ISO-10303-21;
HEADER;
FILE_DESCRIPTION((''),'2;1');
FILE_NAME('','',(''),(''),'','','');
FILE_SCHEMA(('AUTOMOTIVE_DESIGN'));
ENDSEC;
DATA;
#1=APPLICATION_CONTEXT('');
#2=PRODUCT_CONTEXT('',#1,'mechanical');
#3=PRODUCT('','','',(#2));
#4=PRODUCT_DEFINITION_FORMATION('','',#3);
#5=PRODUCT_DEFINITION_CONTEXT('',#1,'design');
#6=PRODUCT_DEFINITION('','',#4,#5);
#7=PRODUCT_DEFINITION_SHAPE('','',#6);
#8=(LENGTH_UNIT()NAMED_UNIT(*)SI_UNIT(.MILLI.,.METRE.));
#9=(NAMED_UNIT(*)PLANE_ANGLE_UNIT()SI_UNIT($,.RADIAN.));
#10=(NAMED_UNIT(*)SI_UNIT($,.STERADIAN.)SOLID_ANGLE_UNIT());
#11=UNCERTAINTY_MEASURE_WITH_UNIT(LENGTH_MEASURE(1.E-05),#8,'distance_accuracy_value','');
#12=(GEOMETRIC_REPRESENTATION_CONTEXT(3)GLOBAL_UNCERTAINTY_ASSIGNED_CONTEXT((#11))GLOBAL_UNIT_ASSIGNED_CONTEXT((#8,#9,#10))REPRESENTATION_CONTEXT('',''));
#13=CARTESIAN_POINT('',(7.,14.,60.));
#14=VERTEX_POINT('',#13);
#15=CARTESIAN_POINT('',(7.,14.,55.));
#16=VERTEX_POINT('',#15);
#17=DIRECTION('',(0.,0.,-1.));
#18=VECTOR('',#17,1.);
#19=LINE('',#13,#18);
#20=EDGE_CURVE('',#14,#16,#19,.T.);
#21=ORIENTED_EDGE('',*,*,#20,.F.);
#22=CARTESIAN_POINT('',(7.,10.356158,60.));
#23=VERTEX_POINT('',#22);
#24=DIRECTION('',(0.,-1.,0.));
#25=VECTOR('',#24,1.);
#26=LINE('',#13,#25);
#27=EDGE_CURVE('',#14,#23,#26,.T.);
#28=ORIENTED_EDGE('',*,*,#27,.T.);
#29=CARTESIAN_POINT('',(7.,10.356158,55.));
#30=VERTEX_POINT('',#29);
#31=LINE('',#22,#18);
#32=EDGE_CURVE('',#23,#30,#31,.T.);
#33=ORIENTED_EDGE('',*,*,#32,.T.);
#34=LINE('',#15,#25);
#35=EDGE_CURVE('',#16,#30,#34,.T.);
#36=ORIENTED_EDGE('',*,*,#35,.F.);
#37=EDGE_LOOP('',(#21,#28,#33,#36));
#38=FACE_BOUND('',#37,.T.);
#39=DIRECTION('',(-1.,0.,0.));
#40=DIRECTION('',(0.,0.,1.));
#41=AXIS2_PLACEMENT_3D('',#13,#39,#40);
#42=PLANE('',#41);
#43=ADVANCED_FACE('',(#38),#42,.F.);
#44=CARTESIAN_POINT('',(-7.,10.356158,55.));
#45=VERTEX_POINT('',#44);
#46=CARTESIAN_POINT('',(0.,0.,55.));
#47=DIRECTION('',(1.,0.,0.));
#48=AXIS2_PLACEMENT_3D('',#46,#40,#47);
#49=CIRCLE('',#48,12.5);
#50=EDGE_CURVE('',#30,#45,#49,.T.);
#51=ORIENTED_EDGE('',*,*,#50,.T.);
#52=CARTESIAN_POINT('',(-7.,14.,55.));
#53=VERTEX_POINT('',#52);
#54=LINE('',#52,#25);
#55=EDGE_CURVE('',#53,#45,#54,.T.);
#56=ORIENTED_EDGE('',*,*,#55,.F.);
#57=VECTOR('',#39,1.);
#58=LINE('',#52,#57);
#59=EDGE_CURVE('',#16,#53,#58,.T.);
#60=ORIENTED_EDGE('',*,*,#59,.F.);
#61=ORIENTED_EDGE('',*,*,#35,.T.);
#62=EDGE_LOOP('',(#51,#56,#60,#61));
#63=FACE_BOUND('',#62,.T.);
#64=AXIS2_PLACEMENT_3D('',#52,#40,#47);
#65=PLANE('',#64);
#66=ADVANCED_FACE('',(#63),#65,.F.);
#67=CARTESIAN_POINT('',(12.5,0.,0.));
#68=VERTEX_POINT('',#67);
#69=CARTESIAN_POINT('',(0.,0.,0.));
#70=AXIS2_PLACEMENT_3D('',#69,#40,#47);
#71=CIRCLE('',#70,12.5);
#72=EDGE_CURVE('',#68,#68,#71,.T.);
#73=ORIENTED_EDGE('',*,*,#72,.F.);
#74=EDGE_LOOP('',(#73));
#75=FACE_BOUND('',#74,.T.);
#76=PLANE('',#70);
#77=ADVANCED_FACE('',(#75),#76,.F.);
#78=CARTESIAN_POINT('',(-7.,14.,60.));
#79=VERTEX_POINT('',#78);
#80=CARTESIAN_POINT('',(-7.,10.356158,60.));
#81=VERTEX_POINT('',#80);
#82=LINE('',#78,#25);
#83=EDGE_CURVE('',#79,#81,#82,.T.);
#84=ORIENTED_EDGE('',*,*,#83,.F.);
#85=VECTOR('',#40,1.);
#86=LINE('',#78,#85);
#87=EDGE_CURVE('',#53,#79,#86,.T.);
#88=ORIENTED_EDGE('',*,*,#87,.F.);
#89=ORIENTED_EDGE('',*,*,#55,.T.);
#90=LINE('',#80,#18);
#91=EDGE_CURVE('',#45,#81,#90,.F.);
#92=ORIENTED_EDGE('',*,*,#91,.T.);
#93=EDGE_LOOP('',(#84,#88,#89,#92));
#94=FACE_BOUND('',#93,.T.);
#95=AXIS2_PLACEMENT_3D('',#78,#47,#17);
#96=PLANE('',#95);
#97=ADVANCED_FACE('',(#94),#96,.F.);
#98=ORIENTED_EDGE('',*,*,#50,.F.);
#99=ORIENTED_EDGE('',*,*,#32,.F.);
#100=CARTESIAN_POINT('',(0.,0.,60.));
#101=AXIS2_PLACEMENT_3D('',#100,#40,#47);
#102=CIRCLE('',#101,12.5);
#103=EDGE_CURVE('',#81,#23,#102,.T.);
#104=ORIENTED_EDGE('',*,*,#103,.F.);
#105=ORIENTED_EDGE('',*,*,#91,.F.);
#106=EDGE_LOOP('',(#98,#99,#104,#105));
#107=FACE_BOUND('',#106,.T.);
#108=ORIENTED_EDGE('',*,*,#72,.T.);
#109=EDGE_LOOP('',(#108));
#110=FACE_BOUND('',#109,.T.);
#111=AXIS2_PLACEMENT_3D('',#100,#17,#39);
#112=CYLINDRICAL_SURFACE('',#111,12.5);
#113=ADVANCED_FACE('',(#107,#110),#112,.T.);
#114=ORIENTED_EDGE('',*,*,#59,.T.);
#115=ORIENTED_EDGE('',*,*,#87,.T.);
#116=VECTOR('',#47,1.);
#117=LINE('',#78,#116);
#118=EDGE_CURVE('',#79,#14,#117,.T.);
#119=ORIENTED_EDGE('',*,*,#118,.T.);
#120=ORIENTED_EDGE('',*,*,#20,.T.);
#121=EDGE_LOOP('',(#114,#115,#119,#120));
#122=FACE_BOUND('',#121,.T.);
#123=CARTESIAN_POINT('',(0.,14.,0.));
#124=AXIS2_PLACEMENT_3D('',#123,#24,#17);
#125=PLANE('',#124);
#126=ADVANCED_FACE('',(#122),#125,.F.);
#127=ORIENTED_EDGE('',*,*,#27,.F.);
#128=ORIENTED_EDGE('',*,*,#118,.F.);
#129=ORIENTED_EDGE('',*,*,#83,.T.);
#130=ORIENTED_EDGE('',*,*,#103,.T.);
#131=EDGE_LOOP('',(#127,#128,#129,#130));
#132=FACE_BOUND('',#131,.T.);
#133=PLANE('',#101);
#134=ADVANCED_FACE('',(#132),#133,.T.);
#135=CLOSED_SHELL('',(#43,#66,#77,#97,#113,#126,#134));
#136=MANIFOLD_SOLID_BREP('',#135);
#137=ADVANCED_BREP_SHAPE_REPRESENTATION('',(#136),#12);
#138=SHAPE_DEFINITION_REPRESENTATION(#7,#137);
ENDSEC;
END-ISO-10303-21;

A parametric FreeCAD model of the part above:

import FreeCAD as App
import Part
import Sketcher

V = App.Vector
Q = App.Units.Quantity

doc = App.newDocument("Part")
body = doc.addObject("PartDesign::Body", "Body")

# Sketch on XY plane
sketch1 = body.newObject("Sketcher::SketchObject", "Sketch")
sketch1.AttachmentSupport = (doc.getObject("XY_Plane"), [""])
sketch1.MapMode = "FlatFace"
sketch1.addGeometry(Part.Circle(V(0, 0, 0), V(0, 0, 1), 12), False)
sketch1.addConstraint(Sketcher.Constraint("Coincident", 0, 3, -1, 1))
sketch1.addConstraint(Sketcher.Constraint("Diameter", 0, Q("25 mm")))
pad1 = body.newObject("PartDesign::Pad", "Pad")
pad1.Profile = sketch1
pad1.Length = 60

# Sketch on XZ plane
sketch2 = body.newObject("Sketcher::SketchObject", "Sketch001")
sketch2.AttachmentSupport = (doc.getObject("XZ_Plane"), [""])
sketch2.MapMode = "FlatFace"
sketch2.addGeometry(Part.LineSegment(V(-7, 55, 0), V(-7, 60, 0)), False)
sketch2.addGeometry(Part.LineSegment(V(-7, 60, 0), V(7, 60, 0)), False)
sketch2.addGeometry(Part.LineSegment(V(7, 60, 0), V(7, 55, 0)), False)
sketch2.addGeometry(Part.LineSegment(V(7, 55, 0), V(-7, 55, 0)), False)
sketch2.addConstraint(Sketcher.Constraint("Coincident", 0, 2, 1, 1))
sketch2.addConstraint(Sketcher.Constraint("Coincident", 1, 2, 2, 1))
sketch2.addConstraint(Sketcher.Constraint("Coincident", 2, 2, 3, 1))
sketch2.addConstraint(Sketcher.Constraint("Coincident", 3, 2, 0, 1))
sketch2.addConstraint(Sketcher.Constraint("Vertical", 0))
sketch2.addConstraint(Sketcher.Constraint("Horizontal", 1))
sketch2.addConstraint(Sketcher.Constraint("Vertical", 2))
sketch2.addConstraint(Sketcher.Constraint("Horizontal", 3))
sketch2.addConstraint(Sketcher.Constraint("DistanceX", 1, 1, 1, 2, Q("14 mm")))
sketch2.addConstraint(Sketcher.Constraint("DistanceY", 0, 1, 0, 2, Q("5 mm")))
sketch2.addConstraint(Sketcher.Constraint("DistanceX", 0, 2, -1, 1, Q("7 mm")))
sketch2.addConstraint(Sketcher.Constraint("DistanceY", -1, 1, 0, 2, Q("60 mm")))
pad2 = body.newObject("PartDesign::Pad", "Pad001")
pad2.Profile = sketch2
pad2.Length = 14
pad2.Reversed = True

doc.recompute()
